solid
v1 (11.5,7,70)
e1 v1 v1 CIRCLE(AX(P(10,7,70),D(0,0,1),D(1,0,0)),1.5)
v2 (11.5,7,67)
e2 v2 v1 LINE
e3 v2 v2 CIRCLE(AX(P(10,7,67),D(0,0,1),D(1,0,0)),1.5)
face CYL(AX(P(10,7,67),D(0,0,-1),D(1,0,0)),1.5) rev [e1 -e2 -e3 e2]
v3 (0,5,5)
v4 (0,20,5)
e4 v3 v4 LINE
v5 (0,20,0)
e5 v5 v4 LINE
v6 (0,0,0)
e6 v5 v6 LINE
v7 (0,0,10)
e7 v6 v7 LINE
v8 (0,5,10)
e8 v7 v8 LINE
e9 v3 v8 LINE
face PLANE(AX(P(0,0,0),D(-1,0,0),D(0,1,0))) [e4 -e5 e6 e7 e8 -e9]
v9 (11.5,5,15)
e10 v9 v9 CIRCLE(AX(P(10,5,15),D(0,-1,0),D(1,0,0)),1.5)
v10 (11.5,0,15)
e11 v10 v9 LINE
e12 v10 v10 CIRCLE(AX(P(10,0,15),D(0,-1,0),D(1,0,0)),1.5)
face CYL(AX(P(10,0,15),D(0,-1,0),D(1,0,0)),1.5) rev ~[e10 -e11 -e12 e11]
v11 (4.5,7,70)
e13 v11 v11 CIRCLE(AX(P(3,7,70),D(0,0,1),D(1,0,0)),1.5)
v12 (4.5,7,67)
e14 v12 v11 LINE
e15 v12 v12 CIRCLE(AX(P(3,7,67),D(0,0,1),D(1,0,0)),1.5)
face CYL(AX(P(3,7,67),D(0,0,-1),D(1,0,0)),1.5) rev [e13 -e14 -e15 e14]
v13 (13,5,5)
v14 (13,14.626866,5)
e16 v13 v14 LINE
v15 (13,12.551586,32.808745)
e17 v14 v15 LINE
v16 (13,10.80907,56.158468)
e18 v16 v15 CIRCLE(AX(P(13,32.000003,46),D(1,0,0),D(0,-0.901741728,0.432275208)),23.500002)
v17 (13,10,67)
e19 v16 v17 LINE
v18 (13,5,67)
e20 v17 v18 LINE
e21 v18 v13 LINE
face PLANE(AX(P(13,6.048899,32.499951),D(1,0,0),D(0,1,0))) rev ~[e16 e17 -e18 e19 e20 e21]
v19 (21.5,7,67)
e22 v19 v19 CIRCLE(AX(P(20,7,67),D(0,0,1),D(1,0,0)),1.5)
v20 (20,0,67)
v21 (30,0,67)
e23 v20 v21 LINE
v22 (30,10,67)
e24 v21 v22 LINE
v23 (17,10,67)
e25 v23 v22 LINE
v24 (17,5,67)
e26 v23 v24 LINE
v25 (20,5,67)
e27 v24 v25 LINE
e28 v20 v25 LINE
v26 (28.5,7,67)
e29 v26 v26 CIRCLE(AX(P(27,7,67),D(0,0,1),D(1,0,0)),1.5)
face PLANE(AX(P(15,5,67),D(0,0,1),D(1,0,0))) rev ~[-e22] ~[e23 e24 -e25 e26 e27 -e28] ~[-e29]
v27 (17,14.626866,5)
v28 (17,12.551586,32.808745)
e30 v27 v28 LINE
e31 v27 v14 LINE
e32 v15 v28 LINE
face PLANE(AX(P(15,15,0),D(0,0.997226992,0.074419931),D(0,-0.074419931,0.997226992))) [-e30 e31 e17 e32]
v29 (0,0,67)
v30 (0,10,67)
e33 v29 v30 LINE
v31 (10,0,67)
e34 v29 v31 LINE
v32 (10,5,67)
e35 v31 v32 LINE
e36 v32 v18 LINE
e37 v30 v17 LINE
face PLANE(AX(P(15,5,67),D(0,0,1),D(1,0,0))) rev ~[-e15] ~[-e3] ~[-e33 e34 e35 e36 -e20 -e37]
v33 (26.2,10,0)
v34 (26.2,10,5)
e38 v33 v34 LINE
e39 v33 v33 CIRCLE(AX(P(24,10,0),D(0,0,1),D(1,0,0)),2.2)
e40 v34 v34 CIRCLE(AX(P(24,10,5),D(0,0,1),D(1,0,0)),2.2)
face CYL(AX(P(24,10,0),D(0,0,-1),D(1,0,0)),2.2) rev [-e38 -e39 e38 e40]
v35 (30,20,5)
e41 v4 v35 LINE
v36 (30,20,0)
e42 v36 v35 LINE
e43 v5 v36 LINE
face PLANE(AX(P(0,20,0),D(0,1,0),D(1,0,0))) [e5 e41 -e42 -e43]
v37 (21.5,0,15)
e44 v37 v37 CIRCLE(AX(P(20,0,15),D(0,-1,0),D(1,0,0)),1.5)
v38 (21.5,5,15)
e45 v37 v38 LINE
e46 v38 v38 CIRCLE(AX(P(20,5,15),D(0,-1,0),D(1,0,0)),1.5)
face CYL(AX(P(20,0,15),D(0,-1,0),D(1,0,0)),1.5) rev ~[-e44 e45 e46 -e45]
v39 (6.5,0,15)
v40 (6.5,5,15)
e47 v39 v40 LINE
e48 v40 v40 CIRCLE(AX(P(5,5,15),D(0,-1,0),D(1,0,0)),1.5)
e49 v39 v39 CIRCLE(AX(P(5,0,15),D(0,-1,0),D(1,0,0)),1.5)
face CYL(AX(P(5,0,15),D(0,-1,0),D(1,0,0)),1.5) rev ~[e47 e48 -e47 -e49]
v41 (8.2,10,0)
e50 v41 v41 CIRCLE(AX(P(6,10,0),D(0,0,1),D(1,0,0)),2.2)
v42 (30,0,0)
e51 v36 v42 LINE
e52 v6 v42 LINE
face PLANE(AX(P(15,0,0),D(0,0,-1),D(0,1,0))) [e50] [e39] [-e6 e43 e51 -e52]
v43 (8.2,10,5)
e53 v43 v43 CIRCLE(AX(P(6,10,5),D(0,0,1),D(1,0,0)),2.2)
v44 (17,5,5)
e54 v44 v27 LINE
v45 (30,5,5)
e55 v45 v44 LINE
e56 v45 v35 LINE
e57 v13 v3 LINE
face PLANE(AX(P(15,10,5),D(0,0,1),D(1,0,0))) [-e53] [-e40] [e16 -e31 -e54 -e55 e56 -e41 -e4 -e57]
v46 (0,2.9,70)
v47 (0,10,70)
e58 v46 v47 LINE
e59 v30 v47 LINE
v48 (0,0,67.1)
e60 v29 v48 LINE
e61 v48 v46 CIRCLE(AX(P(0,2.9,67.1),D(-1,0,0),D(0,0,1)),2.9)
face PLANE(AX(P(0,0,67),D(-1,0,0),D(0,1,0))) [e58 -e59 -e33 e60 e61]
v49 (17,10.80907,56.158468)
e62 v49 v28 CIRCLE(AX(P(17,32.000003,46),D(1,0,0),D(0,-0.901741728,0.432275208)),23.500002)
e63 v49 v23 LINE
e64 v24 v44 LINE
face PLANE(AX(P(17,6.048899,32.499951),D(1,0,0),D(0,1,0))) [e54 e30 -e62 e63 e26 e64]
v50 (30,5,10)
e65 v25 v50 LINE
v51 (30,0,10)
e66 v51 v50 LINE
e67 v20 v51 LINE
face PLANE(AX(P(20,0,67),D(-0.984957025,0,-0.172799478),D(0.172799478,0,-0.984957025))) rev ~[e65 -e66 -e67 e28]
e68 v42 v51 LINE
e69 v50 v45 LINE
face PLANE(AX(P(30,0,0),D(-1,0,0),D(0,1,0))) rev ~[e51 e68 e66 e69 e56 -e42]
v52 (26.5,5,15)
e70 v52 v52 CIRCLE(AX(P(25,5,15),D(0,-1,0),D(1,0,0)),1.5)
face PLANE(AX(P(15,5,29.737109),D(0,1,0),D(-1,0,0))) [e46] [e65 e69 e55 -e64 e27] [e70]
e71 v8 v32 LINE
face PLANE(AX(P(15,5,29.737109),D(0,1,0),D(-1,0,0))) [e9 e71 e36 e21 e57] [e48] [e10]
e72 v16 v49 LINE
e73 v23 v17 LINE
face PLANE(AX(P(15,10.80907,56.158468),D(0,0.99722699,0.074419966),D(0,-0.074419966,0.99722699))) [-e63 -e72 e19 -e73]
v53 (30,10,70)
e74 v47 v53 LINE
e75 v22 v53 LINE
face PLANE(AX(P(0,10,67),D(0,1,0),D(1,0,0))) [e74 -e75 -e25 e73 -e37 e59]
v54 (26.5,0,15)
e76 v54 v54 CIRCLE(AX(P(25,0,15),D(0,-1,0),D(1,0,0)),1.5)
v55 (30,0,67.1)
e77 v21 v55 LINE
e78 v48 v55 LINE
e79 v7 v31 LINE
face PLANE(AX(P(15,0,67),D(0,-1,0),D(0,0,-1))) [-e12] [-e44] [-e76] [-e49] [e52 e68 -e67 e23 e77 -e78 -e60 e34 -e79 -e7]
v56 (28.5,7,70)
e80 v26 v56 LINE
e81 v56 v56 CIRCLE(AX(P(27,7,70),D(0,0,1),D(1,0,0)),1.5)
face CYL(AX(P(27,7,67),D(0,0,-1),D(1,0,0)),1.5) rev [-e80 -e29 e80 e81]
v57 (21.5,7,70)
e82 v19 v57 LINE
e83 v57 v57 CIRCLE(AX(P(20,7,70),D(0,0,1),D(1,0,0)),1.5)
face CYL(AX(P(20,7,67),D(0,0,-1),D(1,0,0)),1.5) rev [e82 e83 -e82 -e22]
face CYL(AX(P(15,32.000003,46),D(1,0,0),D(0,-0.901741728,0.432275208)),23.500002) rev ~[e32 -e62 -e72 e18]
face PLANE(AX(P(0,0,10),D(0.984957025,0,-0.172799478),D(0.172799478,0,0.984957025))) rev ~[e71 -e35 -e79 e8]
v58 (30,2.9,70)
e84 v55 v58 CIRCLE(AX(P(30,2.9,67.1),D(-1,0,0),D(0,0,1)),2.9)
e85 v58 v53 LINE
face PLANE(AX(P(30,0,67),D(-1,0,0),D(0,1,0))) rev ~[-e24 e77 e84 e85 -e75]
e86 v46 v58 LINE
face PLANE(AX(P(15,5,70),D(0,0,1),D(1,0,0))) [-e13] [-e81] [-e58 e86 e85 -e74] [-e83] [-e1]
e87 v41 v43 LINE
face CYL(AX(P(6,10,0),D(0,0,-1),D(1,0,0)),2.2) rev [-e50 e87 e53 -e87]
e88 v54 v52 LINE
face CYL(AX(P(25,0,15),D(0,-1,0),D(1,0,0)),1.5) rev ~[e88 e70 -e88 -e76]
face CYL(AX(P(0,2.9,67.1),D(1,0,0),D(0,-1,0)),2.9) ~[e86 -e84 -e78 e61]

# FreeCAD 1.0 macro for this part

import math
import FreeCAD as App
import Part
import Sketcher


def edges_at(feature, points):
    """Names of the edges that pass closest to the given points."""
    edges = feature.Shape.Edges
    near = lambda p: min(range(len(edges)), key=lambda i: edges[i].distToShape(Part.Vertex(*p))[0])
    return sorted({f"Edge{near(p) + 1}" for p in points})


def add_polygon(sketch, points):
    """Adds a closed chain of lines whose ends are joined by coincident constraints."""
    first, n = sketch.GeometryCount, len(points)
    for a, b in zip(points, points[1:] + points[:1]):
        sketch.addGeometry(Part.LineSegment(App.Vector(*a, 0), App.Vector(*b, 0)), False)
    for i in range(n):
        sketch.addConstraint(Sketcher.Constraint("Coincident", first + i, 2, first + (i + 1) % n, 1))

doc = App.newDocument("Part")
body = doc.addObject("PartDesign::Body", "Body")

sketch1 = body.newObject("Sketcher::SketchObject", "Sketch")
sketch1.AttachmentSupport = (doc.getObject("XY_Plane"), [""])
sketch1.MapMode = "FlatFace"
add_polygon(sketch1, [(0, 20), (0, 0), (30, 0), (30, 20)])
sketch1.addGeometry(Part.Circle(App.Vector(6, 10, 0), App.Vector(0, 0, 1), 2.2), False)
sketch1.addGeometry(Part.Circle(App.Vector(24, 10, 0), App.Vector(0, 0, 1), 2.2), False)
sketch1.addConstraint(Sketcher.Constraint("Vertical", 0))
sketch1.addConstraint(Sketcher.Constraint("Horizontal", 1))
sketch1.addConstraint(Sketcher.Constraint("Vertical", 2))
sketch1.addConstraint(Sketcher.Constraint("Horizontal", 3))
sketch1.addConstraint(Sketcher.Constraint("Coincident", 0, 2, -1, 1))
sketch1.addConstraint(Sketcher.Constraint("Equal", 4, 5))
sketch1.addConstraint(Sketcher.Constraint("Horizontal", 4, 3, 5, 3))
sketch1.addConstraint(Sketcher.Constraint("Diameter", 4, 4.4))
sketch1.addConstraint(Sketcher.Constraint("DistanceX", 1, 1, 1, 2, 30.0))
sketch1.addConstraint(Sketcher.Constraint("DistanceY", 0, 2, 0, 1, 20.0))
sketch1.addConstraint(Sketcher.Constraint("DistanceX", -1, 1, 4, 3, 6.0))
sketch1.addConstraint(Sketcher.Constraint("DistanceY", -1, 1, 4, 3, 10.0))
sketch1.addConstraint(Sketcher.Constraint("DistanceX", -1, 1, 5, 3, 24.0))
pad1 = body.newObject("PartDesign::Pad", "Pad")
pad1.Profile = sketch1
pad1.Length = 5

sketch2 = body.newObject("Sketcher::SketchObject", "Sketch001")
sketch2.AttachmentSupport = (doc.getObject("XZ_Plane"), [""])
sketch2.MapMode = "FlatFace"
add_polygon(sketch2, [(0, 10), (0, 0), (30, 0), (30, 10), (20, 67), (10, 67)])
sketch2.addGeometry(Part.Circle(App.Vector(25, 15, 0), App.Vector(0, 0, 1), 1.5), False)
sketch2.addGeometry(Part.Circle(App.Vector(20, 15, 0), App.Vector(0, 0, 1), 1.5), False)
sketch2.addGeometry(Part.Circle(App.Vector(10, 15, 0), App.Vector(0, 0, 1), 1.5), False)
sketch2.addGeometry(Part.Circle(App.Vector(5, 15, 0), App.Vector(0, 0, 1), 1.5), False)
sketch2.addConstraint(Sketcher.Constraint("Vertical", 0))
sketch2.addConstraint(Sketcher.Constraint("Horizontal", 1))
sketch2.addConstraint(Sketcher.Constraint("Vertical", 2))
sketch2.addConstraint(Sketcher.Constraint("Horizontal", 4))
sketch2.addConstraint(Sketcher.Constraint("Coincident", 0, 2, -1, 1))
sketch2.addConstraint(Sketcher.Constraint("Equal", 6, 7))
sketch2.addConstraint(Sketcher.Constraint("Equal", 7, 8))
sketch2.addConstraint(Sketcher.Constraint("Equal", 8, 9))
sketch2.addConstraint(Sketcher.Constraint("Horizontal", 6, 3, 7, 3))
sketch2.addConstraint(Sketcher.Constraint("Horizontal", 7, 3, 8, 3))
sketch2.addConstraint(Sketcher.Constraint("Horizontal", 8, 3, 9, 3))
sketch2.addConstraint(Sketcher.Constraint("Horizontal", 2, 2, 5, 2))
sketch2.addConstraint(Sketcher.Constraint("Vertical", 7, 3, 3, 2))
sketch2.addConstraint(Sketcher.Constraint("Vertical", 8, 3, 4, 2))
sketch2.addConstraint(Sketcher.Constraint("Equal", 4, 0))
sketch2.addConstraint(Sketcher.Constraint("Equal", 3, 5))
sketch2.addConstraint(Sketcher.Constraint("Diameter", 6, 3.0))
sketch2.addConstraint(Sketcher.Constraint("DistanceX", 1, 1, 1, 2, 30.0))
sketch2.addConstraint(Sketcher.Constraint("DistanceX", 4, 2, 4, 1, 10.0))
sketch2.addConstraint(Sketcher.Constraint("DistanceX", -1, 1, 6, 3, 25.0))
sketch2.addConstraint(Sketcher.Constraint("DistanceY", -1, 1, 6, 3, 15.0))
sketch2.addConstraint(Sketcher.Constraint("DistanceX", -1, 1, 9, 3, 5.0))
sketch2.addConstraint(Sketcher.Constraint("DistanceY", -1, 1, 3, 2, 67.0))
pad2 = body.newObject("PartDesign::Pad", "Pad001")
pad2.Profile = sketch2
pad2.Length = 5
pad2.Reversed = True

sketch3 = body.newObject("Sketcher::SketchObject", "Sketch002")
sketch3.AttachmentSupport = (doc.getObject("XY_Plane"), [""])
sketch3.MapMode = "FlatFace"
sketch3.AttachmentOffset = App.Placement(App.Vector(0, 0, 67), App.Rotation())
add_polygon(sketch3, [(0, 10), (0, 0), (30, 0), (30, 10)])
sketch3.addGeometry(Part.Circle(App.Vector(3, 7, 0), App.Vector(0, 0, 1), 1.5), False)
sketch3.addGeometry(Part.Circle(App.Vector(10, 7, 0), App.Vector(0, 0, 1), 1.5), False)
sketch3.addGeometry(Part.Circle(App.Vector(20, 7, 0), App.Vector(0, 0, 1), 1.5), False)
sketch3.addGeometry(Part.Circle(App.Vector(27, 7, 0), App.Vector(0, 0, 1), 1.5), False)
sketch3.addConstraint(Sketcher.Constraint("Vertical", 0))
sketch3.addConstraint(Sketcher.Constraint("Horizontal", 1))
sketch3.addConstraint(Sketcher.Constraint("Vertical", 2))
sketch3.addConstraint(Sketcher.Constraint("Horizontal", 3))
sketch3.addConstraint(Sketcher.Constraint("Coincident", 0, 2, -1, 1))
sketch3.addConstraint(Sketcher.Constraint("Equal", 4, 5))
sketch3.addConstraint(Sketcher.Constraint("Equal", 5, 6))
sketch3.addConstraint(Sketcher.Constraint("Equal", 6, 7))
sketch3.addConstraint(Sketcher.Constraint("Horizontal", 4, 3, 5, 3))
sketch3.addConstraint(Sketcher.Constraint("Horizontal", 5, 3, 6, 3))
sketch3.addConstraint(Sketcher.Constraint("Horizontal", 6, 3, 7, 3))
sketch3.addConstraint(Sketcher.Constraint("Diameter", 4, 3.0))
sketch3.addConstraint(Sketcher.Constraint("DistanceX", 1, 1, 1, 2, 30.0))
sketch3.addConstraint(Sketcher.Constraint("DistanceY", 0, 2, 0, 1, 10.0))
sketch3.addConstraint(Sketcher.Constraint("DistanceX", -1, 1, 4, 3, 3.0))
sketch3.addConstraint(Sketcher.Constraint("DistanceY", -1, 1, 4, 3, 7.0))
sketch3.addConstraint(Sketcher.Constraint("DistanceX", -1, 1, 5, 3, 10.0))
sketch3.addConstraint(Sketcher.Constraint("DistanceX", -1, 1, 6, 3, 20.0))
sketch3.addConstraint(Sketcher.Constraint("DistanceX", -1, 1, 7, 3, 27.0))
pad3 = body.newObject("PartDesign::Pad", "Pad002")
pad3.Profile = sketch3
pad3.Length = 3

sketch4 = body.newObject("Sketcher::SketchObject", "Sketch003")
sketch4.AttachmentSupport = (doc.getObject("YZ_Plane"), [""])
sketch4.MapMode = "FlatFace"
sketch4.AttachmentOffset = App.Placement(App.Vector(0, 0, 15), App.Rotation())
sketch4.addGeometry(Part.LineSegment(App.Vector(0, 0, 0), App.Vector(15, 0, 0)), False)
sketch4.addGeometry(Part.LineSegment(App.Vector(15, 0, 0), App.Vector(12.551586, 32.808745, 0)), False)
sketch4.addGeometry(Part.ArcOfCircle(Part.Circle(App.Vector(32.000003, 46, 0), App.Vector(0, 0, 1), 23.500002), math.radians(154.387963), math.radians(214.147821)), False)
sketch4.addGeometry(Part.LineSegment(App.Vector(10.80907, 56.158468, 0), App.Vector(10, 67, 0)), False)
sketch4.addGeometry(Part.LineSegment(App.Vector(10, 67, 0), App.Vector(0, 67, 0)), False)
sketch4.addGeometry(Part.LineSegment(App.Vector(0, 67, 0), App.Vector(0, 0, 0)), False)
sketch4.addConstraint(Sketcher.Constraint("Coincident", 0, 2, 1, 1))
sketch4.addConstraint(Sketcher.Constraint("Coincident", 1, 2, 2, 2))
sketch4.addConstraint(Sketcher.Constraint("Coincident", 2, 1, 3, 1))
sketch4.addConstraint(Sketcher.Constraint("Coincident", 3, 2, 4, 1))
sketch4.addConstraint(Sketcher.Constraint("Coincident", 4, 2, 5, 1))
sketch4.addConstraint(Sketcher.Constraint("Coincident", 5, 2, 0, 1))
sketch4.addConstraint(Sketcher.Constraint("Horizontal", 0))
sketch4.addConstraint(Sketcher.Constraint("Horizontal", 4))
sketch4.addConstraint(Sketcher.Constraint("Vertical", 5))
sketch4.addConstraint(Sketcher.Constraint("Coincident", 5, 2, -1, 1))
sketch4.addConstraint(Sketcher.Constraint("Parallel", 1, 3))
sketch4.addConstraint(Sketcher.Constraint("DistanceX", 0, 1, 0, 2, 15.0))
sketch4.addConstraint(Sketcher.Constraint("DistanceX", 4, 2, 4, 1, 10.0))
sketch4.addConstraint(Sketcher.Constraint("DistanceY", 5, 2, 5, 1, 67.0))
sketch4.addConstraint(Sketcher.Constraint("DistanceY", -1, 1, 2, 3, 46.0))
sketch4.addConstraint(Sketcher.Constraint("Radius", 2, 23.500002))
sketch4.addConstraint(Sketcher.Constraint("Distance", 3, 10.871679))
sketch4.addConstraint(Sketcher.Constraint("DistanceX", -1, 1, 2, 1, 10.80907))
pad4 = body.newObject("PartDesign::Pad", "Pad003")
pad4.Profile = sketch4
pad4.Length = 4
pad4.Midplane = True
doc.recompute()

fillet = body.newObject("PartDesign::Fillet", "Fillet")
fillet.Base = (pad4, edges_at(pad4, [(15, 0, 70)]))
fillet.Radius = 2.9

doc.recompute()
